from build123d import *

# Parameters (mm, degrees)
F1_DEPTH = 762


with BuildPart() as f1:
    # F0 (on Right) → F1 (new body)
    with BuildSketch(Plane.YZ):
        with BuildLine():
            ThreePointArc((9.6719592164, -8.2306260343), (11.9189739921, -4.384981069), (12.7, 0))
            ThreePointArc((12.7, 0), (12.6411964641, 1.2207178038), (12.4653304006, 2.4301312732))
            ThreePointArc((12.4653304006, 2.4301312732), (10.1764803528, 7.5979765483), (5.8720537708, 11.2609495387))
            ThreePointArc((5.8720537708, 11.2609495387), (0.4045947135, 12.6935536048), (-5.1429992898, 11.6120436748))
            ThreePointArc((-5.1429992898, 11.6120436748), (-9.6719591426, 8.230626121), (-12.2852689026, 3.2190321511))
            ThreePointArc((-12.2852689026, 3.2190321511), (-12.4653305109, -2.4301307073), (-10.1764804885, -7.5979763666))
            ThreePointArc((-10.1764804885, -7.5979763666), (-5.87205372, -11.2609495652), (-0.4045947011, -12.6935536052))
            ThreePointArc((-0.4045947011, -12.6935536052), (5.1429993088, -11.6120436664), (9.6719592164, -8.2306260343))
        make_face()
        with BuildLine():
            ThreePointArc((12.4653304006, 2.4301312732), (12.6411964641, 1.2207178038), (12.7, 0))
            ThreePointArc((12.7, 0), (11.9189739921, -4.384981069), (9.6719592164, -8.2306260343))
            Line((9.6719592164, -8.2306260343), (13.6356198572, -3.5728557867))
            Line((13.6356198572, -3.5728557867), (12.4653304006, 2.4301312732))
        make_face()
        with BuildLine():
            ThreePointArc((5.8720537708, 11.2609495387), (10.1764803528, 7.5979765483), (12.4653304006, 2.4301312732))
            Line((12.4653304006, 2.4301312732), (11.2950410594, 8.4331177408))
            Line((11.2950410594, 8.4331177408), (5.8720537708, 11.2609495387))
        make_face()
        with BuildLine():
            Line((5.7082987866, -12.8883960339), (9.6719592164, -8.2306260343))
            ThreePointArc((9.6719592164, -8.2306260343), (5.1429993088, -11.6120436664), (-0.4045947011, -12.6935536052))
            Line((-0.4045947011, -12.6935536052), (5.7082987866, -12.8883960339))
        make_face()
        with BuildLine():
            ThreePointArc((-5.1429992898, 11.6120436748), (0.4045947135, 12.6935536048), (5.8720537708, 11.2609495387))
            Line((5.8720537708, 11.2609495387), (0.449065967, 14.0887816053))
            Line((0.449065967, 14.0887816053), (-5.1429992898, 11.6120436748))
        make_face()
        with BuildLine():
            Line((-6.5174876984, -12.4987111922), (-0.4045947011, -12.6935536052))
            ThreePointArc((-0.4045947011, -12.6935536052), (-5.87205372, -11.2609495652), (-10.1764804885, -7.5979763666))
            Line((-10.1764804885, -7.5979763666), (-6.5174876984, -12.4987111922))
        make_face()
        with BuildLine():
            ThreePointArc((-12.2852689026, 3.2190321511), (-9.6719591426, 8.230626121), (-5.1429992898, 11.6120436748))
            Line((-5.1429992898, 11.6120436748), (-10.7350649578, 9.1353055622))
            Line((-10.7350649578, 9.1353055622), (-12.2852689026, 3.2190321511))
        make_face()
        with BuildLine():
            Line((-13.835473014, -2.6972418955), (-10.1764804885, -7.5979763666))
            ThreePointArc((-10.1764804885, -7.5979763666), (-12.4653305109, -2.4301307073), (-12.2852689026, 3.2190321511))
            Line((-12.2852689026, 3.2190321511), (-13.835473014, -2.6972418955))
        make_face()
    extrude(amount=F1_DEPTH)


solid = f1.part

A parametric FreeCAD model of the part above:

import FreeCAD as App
import Part
import Sketcher
Q = App.Units.Quantity

doc = App.newDocument("Part")
body = doc.addObject("PartDesign::Body", "Body")

sketch1 = body.newObject("Sketcher::SketchObject", "Sketch")
sketch1.AttachmentSupport = (doc.getObject("YZ_Plane"), [""])
sketch1.MapMode = "FlatFace"
sketch1.addGeometry(Part.LineSegment(App.Vector(-10.17648, -7.597976, 0), App.Vector(-6.517488, -12.498711, 0)), False)
sketch1.addGeometry(Part.LineSegment(App.Vector(-6.517488, -12.498711, 0), App.Vector(-0.404595, -12.693554, 0)), False)
sketch1.addGeometry(Part.LineSegment(App.Vector(-0.404595, -12.693554, 0), App.Vector(5.708299, -12.888396, 0)), False)
sketch1.addGeometry(Part.LineSegment(App.Vector(5.708299, -12.888396, 0), App.Vector(9.671959, -8.230626, 0)), False)
sketch1.addGeometry(Part.LineSegment(App.Vector(9.671959, -8.230626, 0), App.Vector(13.63562, -3.572856, 0)), False)
sketch1.addGeometry(Part.LineSegment(App.Vector(13.63562, -3.572856, 0), App.Vector(12.46533, 2.430131, 0)), False)
sketch1.addGeometry(Part.LineSegment(App.Vector(12.46533, 2.430131, 0), App.Vector(11.295041, 8.433118, 0)), False)
sketch1.addGeometry(Part.LineSegment(App.Vector(11.295041, 8.433118, 0), App.Vector(5.872054, 11.26095, 0)), False)
sketch1.addGeometry(Part.LineSegment(App.Vector(5.872054, 11.26095, 0), App.Vector(0.449066, 14.088782, 0)), False)
sketch1.addGeometry(Part.LineSegment(App.Vector(0.449066, 14.088782, 0), App.Vector(-5.142999, 11.612044, 0)), False)
sketch1.addGeometry(Part.LineSegment(App.Vector(-5.142999, 11.612044, 0), App.Vector(-10.735065, 9.135306, 0)), False)
sketch1.addGeometry(Part.LineSegment(App.Vector(-10.735065, 9.135306, 0), App.Vector(-12.285269, 3.219032, 0)), False)
sketch1.addGeometry(Part.LineSegment(App.Vector(-12.285269, 3.219032, 0), App.Vector(-13.835473, -2.697242, 0)), False)
sketch1.addGeometry(Part.LineSegment(App.Vector(-13.835473, -2.697242, 0), App.Vector(-10.17648, -7.597976, 0)), False)
sketch1.addConstraint(Sketcher.Constraint("Coincident", 0, 2, 1, 1))
sketch1.addConstraint(Sketcher.Constraint("Coincident", 1, 2, 2, 1))
sketch1.addConstraint(Sketcher.Constraint("Coincident", 2, 2, 3, 1))
sketch1.addConstraint(Sketcher.Constraint("Coincident", 3, 2, 4, 1))
sketch1.addConstraint(Sketcher.Constraint("Coincident", 4, 2, 5, 1))
sketch1.addConstraint(Sketcher.Constraint("Coincident", 5, 2, 6, 1))
sketch1.addConstraint(Sketcher.Constraint("Coincident", 6, 2, 7, 1))
sketch1.addConstraint(Sketcher.Constraint("Coincident", 7, 2, 8, 1))
sketch1.addConstraint(Sketcher.Constraint("Coincident", 8, 2, 9, 1))
sketch1.addConstraint(Sketcher.Constraint("Coincident", 9, 2, 10, 1))
sketch1.addConstraint(Sketcher.Constraint("Coincident", 10, 2, 11, 1))
sketch1.addConstraint(Sketcher.Constraint("Coincident", 11, 2, 12, 1))
sketch1.addConstraint(Sketcher.Constraint("Coincident", 12, 2, 13, 1))
sketch1.addConstraint(Sketcher.Constraint("Coincident", 13, 2, 0, 1))
sketch1.addConstraint(Sketcher.Constraint("Parallel", 1, 2))
sketch1.addConstraint(Sketcher.Constraint("Parallel", 3, 4))
sketch1.addConstraint(Sketcher.Constraint("Parallel", 5, 6))
sketch1.addConstraint(Sketcher.Constraint("Parallel", 7, 8))
sketch1.addConstraint(Sketcher.Constraint("Parallel", 9, 10))
sketch1.addConstraint(Sketcher.Constraint("Parallel", 11, 12))
sketch1.addConstraint(Sketcher.Constraint("Parallel", 0, 13))
sketch1.addConstraint(Sketcher.Constraint("Equal", 0, 1))
sketch1.addConstraint(Sketcher.Constraint("Equal", 1, 2))
sketch1.addConstraint(Sketcher.Constraint("Equal", 2, 3))
sketch1.addConstraint(Sketcher.Constraint("Equal", 3, 4))
sketch1.addConstraint(Sketcher.Constraint("Equal", 4, 5))
sketch1.addConstraint(Sketcher.Constraint("Equal", 5, 6))
sketch1.addConstraint(Sketcher.Constraint("Equal", 6, 7))
sketch1.addConstraint(Sketcher.Constraint("Equal", 7, 8))
sketch1.addConstraint(Sketcher.Constraint("Equal", 8, 9))
sketch1.addConstraint(Sketcher.Constraint("Equal", 9, 10))
sketch1.addConstraint(Sketcher.Constraint("Equal", 10, 11))
sketch1.addConstraint(Sketcher.Constraint("Equal", 11, 12))
sketch1.addConstraint(Sketcher.Constraint("Equal", 12, 13))
sketch1.addConstraint(Sketcher.Constraint("DistanceX", -1, 1, 2, 2, 5.708299))
sketch1.addConstraint(Sketcher.Constraint("DistanceX", 9, 2, -1, 1, 5.142999))
sketch1.addConstraint(Sketcher.Constraint("DistanceY", 4, 2, 9, 2, 15.184899))
sketch1.addConstraint(Sketcher.Constraint("DistanceY", 0, 2, -1, 1, 12.498711))
sketch1.addConstraint(Sketcher.Constraint("DistanceX", -1, 1, 3, 2, 9.671959))
sketch1.addConstraint(Sketcher.Constraint("DistanceX", -1, 1, 5, 2, 12.46533))
sketch1.addConstraint(Sketcher.Constraint("DistanceY", -1, 1, 5, 2, 2.430131))
sketch1.addConstraint(Sketcher.Constraint("DistanceY", -1, 1, 7, 2, 11.26095))
pad1 = body.newObject("PartDesign::Pad", "Pad")
pad1.Profile = sketch1
pad1.Length = Q("30 in")

doc.recompute()
